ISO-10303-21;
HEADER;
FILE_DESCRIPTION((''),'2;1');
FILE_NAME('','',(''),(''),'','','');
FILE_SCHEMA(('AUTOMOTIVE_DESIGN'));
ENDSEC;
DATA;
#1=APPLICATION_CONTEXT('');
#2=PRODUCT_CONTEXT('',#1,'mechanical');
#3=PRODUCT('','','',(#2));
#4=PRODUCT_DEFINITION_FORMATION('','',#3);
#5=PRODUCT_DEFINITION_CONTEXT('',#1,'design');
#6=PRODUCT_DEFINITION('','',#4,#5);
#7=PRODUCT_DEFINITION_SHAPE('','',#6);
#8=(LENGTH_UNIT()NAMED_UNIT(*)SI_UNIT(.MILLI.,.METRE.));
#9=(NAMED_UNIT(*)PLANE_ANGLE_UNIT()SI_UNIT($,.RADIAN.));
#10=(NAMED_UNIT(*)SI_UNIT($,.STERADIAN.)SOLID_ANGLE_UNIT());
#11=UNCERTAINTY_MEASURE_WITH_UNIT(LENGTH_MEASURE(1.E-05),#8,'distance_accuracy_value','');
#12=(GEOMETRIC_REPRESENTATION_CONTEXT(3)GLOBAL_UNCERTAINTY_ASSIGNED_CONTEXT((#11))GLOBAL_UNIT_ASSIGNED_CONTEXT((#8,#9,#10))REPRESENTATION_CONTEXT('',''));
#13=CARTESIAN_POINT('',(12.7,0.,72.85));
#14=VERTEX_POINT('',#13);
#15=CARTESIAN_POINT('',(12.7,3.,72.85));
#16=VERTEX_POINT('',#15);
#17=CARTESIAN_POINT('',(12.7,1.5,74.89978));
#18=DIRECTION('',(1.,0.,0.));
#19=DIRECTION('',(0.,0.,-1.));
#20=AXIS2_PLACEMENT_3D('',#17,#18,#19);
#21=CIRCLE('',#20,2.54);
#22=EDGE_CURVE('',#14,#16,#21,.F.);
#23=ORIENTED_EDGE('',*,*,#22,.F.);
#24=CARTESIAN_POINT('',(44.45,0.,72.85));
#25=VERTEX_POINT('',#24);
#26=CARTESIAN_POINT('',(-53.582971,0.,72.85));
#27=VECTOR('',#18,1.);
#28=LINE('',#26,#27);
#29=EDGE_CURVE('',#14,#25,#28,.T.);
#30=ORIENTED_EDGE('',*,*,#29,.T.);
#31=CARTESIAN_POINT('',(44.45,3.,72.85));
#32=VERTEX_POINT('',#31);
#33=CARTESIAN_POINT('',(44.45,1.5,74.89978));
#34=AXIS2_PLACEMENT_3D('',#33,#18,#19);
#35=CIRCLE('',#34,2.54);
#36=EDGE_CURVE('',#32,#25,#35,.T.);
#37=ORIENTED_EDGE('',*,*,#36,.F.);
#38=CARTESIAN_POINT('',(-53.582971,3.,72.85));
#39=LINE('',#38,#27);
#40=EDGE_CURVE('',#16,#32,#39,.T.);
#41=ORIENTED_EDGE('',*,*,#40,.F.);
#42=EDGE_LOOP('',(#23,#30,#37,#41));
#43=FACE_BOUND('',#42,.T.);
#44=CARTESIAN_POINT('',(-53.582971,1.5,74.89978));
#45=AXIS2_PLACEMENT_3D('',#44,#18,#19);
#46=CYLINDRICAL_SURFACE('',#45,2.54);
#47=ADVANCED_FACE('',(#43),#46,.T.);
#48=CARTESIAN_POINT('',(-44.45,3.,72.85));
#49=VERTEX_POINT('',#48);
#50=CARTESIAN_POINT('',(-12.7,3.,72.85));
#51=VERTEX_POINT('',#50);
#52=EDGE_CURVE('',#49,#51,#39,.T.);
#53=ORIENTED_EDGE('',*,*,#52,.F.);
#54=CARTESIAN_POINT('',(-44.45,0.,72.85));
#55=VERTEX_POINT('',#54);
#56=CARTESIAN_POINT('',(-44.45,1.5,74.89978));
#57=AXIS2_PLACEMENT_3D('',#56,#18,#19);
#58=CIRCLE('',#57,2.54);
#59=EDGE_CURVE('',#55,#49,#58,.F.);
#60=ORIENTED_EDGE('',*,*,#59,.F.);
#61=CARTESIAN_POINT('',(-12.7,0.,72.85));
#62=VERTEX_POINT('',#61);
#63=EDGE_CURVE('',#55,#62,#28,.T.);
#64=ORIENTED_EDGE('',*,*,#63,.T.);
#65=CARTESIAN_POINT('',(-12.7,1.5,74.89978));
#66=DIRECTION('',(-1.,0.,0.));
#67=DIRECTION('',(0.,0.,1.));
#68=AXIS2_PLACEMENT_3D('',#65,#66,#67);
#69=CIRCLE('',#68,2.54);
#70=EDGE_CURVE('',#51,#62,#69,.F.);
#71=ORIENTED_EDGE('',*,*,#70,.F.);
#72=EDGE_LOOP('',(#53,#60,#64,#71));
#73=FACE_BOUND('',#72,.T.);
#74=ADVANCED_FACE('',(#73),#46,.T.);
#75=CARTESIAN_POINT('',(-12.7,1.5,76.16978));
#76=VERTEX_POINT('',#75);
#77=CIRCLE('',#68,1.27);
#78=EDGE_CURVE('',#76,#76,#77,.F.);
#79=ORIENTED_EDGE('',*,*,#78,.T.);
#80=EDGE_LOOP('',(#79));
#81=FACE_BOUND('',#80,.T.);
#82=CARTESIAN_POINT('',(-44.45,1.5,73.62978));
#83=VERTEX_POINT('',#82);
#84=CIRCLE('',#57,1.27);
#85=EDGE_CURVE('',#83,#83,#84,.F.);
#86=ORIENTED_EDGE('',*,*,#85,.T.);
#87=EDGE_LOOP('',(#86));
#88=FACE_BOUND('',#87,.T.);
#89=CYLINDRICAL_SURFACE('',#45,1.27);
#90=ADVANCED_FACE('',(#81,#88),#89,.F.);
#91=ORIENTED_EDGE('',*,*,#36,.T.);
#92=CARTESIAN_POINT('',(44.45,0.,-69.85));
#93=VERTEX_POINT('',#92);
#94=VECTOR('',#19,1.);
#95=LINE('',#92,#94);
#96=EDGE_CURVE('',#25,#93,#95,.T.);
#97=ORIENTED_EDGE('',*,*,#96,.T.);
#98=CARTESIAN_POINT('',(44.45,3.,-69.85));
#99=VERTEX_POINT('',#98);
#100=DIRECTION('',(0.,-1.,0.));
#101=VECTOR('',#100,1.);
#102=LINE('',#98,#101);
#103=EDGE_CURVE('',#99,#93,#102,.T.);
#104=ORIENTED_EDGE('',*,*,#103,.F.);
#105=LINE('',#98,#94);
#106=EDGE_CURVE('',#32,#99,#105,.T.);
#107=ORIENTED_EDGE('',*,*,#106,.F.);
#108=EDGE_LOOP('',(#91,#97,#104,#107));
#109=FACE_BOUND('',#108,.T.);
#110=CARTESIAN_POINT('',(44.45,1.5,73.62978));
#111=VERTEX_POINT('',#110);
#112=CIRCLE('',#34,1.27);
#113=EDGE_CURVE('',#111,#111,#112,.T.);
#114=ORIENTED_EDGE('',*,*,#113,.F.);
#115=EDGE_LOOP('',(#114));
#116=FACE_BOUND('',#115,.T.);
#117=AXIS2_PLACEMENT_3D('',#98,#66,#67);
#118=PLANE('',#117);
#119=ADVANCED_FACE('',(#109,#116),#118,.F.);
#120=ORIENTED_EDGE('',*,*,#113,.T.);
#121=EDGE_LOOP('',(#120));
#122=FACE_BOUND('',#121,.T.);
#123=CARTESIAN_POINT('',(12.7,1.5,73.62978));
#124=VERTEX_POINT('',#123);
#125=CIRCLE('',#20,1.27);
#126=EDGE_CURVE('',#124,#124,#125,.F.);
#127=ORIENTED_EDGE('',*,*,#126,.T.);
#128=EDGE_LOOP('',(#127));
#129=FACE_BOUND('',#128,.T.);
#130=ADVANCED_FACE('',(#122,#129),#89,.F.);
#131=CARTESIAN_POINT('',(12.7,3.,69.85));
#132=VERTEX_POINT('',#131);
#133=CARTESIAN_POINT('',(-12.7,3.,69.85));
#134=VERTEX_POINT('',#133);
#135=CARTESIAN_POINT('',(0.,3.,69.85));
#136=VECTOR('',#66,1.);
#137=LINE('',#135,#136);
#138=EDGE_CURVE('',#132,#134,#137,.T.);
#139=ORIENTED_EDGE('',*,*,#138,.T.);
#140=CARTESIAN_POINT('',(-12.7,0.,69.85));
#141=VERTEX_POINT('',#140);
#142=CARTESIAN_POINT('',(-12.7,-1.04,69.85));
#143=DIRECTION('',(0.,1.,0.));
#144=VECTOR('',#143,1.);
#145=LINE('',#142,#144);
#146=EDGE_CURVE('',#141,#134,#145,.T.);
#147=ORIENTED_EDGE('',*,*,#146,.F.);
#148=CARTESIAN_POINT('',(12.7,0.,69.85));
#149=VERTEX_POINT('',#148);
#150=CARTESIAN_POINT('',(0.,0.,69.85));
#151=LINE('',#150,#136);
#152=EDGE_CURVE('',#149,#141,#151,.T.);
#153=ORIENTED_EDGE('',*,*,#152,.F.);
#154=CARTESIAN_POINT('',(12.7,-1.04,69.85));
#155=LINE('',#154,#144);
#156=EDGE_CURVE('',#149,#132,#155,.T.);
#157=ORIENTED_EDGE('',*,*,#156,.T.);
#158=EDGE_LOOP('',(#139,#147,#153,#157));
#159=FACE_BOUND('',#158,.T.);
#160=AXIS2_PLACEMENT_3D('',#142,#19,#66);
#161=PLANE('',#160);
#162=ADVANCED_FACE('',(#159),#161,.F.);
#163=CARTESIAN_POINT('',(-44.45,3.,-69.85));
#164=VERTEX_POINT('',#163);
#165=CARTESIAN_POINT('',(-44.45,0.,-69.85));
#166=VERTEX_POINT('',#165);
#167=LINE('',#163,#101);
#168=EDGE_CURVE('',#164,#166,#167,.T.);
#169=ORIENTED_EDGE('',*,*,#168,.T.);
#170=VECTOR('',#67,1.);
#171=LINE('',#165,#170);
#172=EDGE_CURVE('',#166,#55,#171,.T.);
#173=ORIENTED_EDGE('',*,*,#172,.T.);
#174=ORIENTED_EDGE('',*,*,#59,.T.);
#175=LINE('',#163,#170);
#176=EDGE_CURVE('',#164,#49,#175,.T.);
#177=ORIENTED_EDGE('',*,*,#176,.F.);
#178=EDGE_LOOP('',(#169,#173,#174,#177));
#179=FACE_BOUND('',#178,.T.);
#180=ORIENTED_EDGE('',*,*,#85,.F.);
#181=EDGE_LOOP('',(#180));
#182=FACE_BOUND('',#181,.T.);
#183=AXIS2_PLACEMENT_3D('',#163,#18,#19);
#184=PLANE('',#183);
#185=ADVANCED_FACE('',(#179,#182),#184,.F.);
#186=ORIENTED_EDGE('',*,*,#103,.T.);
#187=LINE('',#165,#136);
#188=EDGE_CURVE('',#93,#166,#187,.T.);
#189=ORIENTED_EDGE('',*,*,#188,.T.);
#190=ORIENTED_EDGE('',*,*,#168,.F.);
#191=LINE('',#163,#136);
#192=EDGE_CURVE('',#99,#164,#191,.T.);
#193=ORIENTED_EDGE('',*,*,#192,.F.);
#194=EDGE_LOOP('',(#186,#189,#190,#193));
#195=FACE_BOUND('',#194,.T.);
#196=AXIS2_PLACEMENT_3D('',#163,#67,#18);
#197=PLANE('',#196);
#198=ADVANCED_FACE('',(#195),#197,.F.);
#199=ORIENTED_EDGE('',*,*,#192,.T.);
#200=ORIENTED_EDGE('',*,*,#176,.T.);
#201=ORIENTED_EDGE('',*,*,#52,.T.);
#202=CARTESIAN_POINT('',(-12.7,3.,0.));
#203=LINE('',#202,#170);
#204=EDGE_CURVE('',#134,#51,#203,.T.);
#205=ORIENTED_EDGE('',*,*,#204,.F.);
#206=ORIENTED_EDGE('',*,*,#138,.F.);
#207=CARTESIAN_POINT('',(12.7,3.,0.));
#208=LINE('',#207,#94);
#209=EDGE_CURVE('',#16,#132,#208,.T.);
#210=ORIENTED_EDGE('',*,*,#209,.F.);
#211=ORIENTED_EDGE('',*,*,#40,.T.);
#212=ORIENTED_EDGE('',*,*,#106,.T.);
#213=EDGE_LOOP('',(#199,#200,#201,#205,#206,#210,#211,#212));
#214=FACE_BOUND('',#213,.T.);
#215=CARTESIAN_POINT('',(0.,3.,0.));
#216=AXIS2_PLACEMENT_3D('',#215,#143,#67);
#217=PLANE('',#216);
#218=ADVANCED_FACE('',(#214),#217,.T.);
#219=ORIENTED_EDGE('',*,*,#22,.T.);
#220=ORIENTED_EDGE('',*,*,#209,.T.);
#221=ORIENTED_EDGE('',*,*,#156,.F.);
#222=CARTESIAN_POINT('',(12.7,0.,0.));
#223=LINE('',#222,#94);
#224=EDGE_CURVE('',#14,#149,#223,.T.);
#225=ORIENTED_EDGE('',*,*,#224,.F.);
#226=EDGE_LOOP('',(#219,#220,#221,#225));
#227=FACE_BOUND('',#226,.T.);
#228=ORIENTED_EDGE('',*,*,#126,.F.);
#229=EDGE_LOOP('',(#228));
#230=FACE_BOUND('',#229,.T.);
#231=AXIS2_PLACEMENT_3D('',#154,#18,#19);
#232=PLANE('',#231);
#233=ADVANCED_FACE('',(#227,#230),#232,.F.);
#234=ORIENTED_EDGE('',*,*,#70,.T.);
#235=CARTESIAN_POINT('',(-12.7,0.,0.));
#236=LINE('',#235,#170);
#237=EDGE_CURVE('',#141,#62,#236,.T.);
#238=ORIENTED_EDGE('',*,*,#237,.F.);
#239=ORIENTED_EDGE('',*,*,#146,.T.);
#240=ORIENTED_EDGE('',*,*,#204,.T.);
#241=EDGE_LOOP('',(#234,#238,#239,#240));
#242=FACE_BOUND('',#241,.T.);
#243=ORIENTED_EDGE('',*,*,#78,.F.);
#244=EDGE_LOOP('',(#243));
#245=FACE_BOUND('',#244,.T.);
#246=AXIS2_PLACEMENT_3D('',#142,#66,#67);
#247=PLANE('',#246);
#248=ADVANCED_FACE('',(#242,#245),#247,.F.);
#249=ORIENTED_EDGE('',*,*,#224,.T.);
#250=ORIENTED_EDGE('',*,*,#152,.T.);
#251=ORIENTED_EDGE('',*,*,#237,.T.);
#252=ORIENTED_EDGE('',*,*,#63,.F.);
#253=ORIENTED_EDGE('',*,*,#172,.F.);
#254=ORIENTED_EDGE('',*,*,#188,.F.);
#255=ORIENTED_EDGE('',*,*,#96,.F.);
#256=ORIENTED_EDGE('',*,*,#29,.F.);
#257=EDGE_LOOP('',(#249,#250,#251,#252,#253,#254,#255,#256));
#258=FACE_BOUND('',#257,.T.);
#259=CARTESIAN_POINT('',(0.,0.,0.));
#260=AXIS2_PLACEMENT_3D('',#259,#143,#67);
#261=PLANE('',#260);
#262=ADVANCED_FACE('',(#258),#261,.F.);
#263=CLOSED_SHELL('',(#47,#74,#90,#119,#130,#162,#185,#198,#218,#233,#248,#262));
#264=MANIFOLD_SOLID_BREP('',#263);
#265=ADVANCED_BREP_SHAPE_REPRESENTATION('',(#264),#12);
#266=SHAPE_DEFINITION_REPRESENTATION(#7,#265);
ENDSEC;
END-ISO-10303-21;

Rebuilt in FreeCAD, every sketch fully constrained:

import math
import FreeCAD as App
import Part
import Sketcher

V = App.Vector
Q = App.Units.Quantity


def add_polygon(sketch, points):
    """Adds a closed chain of lines whose ends are joined by coincident constraints."""
    first, n = sketch.GeometryCount, len(points)
    for a, b in zip(points, points[1:] + points[:1]):
        sketch.addGeometry(Part.LineSegment(App.Vector(*a, 0), App.Vector(*b, 0)), False)
    for i in range(n):
        sketch.addConstraint(Sketcher.Constraint("Coincident", first + i, 2, first + (i + 1) % n, 1))

doc = App.newDocument("Part")
body = doc.addObject("PartDesign::Body", "Body")

sketch1 = body.newObject("Sketcher::SketchObject", "Sketch")
sketch1.AttachmentSupport = (doc.getObject("XZ_Plane"), [""])
sketch1.MapMode = "FlatFace"
add_polygon(sketch1, [(-44.45, -69.85), (-44.45, 69.85), (44.45, 69.85), (44.45, -69.85)])
sketch1.addConstraint([
    Sketcher.Constraint("Vertical", 0),
    Sketcher.Constraint("Horizontal", 1),
    Sketcher.Constraint("Vertical", 2),
    Sketcher.Constraint("Horizontal", 3),
    Sketcher.Constraint("Symmetric", 0, 2, 2, 2, -1, 1),
    Sketcher.Constraint("DistanceX", 1, 1, 1, 2, Q("3.5 in")),
    Sketcher.Constraint("DistanceY", 0, 1, 0, 2, Q("5.5 in")),
])
pad1 = body.newObject("PartDesign::Pad", "Pad")
pad1.Profile = sketch1
pad1.Length = 3
pad1.Reversed = True

sketch2 = body.newObject("Sketcher::SketchObject", "Sketch001")
sketch2.AttachmentSupport = (doc.getObject("YZ_Plane"), [""])
sketch2.MapMode = "FlatFace"
sketch2.AttachmentOffset = App.Placement(V(0, 0, 1.75 * 25.4), App.Rotation())
sketch2.addGeometry([
    Part.LineSegment(V(0, 69.85, 0), V(3, 69.85, 0)),
    Part.LineSegment(V(3, 69.85, 0), V(3, 72.85, 0)),
    Part.ArcOfCircle(Part.Circle(V(1.5, 74.89978, 0), V(0, 0, 1), 2.54), math.radians(-53.803869), math.radians(233.803869)),
    Part.LineSegment(V(0, 72.85, 0), V(0, 69.85, 0)),
    Part.Circle(V(1.5, 74.89978, 0), V(0, 0, 1), 1.27),
], False)
sketch2.addConstraint([
    Sketcher.Constraint("Coincident", 0, 2, 1, 1),
    Sketcher.Constraint("Coincident", 1, 2, 2, 1),
    Sketcher.Constraint("Coincident", 2, 2, 3, 1),
    Sketcher.Constraint("Coincident", 3, 2, 0, 1),
    Sketcher.Constraint("Horizontal", 0),
    Sketcher.Constraint("Vertical", 1),
    Sketcher.Constraint("Vertical", 3),
    Sketcher.Constraint("Coincident", 4, 3, 2, 3),
    Sketcher.Constraint("PointOnObject", 2, 2, -2),
    Sketcher.Constraint("Horizontal", 1, 2, 2, 2),
    Sketcher.Constraint("Equal", 0, 1),
    Sketcher.Constraint("Diameter", 4, Q("0.1 in")),
    Sketcher.Constraint("Radius", 2, Q("0.1 in")),
    Sketcher.Constraint("DistanceY", -1, 1, 0, 2, Q("2.75 in")),
    Sketcher.Constraint("DistanceX", 0, 1, 0, 2, Q("3 mm")),
])
pad2 = body.newObject("PartDesign::Pad", "Pad001")
pad2.Profile = sketch2
pad2.Length = Q("3.5 in")
pad2.Reversed = True

sketch3 = body.newObject("Sketcher::SketchObject", "Sketch002")
sketch3.AttachmentSupport = (doc.getObject("XZ_Plane"), [""])
sketch3.MapMode = "FlatFace"
add_polygon(sketch3, [(-12.7, 69.85), (-12.7, 87.587449), (12.7, 87.587449), (12.7, 69.85)])
sketch3.addConstraint([
    Sketcher.Constraint("Vertical", 0),
    Sketcher.Constraint("Horizontal", 1),
    Sketcher.Constraint("Vertical", 2),
    Sketcher.Constraint("Horizontal", 3),
    Sketcher.Constraint("DistanceX", 1, 1, 1, 2, Q("1 in")),
    Sketcher.Constraint("DistanceX", 0, 2, -1, 1, Q("0.5 in")),
    Sketcher.Constraint("DistanceY", -1, 1, 2, 2, Q("2.75 in")),
    Sketcher.Constraint("DistanceY", 0, 1, 0, 2, Q("17.737449 mm")),
])
pocket1 = body.newObject("PartDesign::Pocket", "Pocket")
pocket1.Profile = sketch3
pocket1.Type = "ThroughAll"
pocket1.Midplane = True

doc.recompute()
